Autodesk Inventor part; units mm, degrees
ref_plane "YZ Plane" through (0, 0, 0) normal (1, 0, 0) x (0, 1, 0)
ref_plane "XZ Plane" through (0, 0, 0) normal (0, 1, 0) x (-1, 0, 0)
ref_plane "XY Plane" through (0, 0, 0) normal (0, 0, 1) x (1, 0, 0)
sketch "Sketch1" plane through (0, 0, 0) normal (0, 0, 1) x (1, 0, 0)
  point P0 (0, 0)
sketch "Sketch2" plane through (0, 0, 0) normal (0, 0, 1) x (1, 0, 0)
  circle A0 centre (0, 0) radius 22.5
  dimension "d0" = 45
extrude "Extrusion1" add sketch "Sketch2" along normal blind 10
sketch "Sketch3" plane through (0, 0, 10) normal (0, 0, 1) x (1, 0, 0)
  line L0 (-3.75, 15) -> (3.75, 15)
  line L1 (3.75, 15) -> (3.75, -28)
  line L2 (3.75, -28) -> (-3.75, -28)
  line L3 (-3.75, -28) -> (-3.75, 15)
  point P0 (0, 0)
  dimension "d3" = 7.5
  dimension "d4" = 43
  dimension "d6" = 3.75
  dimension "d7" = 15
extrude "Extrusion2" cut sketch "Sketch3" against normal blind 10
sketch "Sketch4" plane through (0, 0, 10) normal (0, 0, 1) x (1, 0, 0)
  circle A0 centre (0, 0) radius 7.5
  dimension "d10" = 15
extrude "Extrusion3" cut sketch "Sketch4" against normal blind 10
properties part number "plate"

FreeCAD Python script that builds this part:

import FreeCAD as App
import Part
import Sketcher

V = App.Vector


def add_polygon(sketch, points):
    """Adds a closed chain of lines whose ends are joined by coincident constraints."""
    first, n = sketch.GeometryCount, len(points)
    for a, b in zip(points, points[1:] + points[:1]):
        sketch.addGeometry(Part.LineSegment(App.Vector(*a, 0), App.Vector(*b, 0)), False)
    for i in range(n):
        sketch.addConstraint(Sketcher.Constraint("Coincident", first + i, 2, first + (i + 1) % n, 1))

doc = App.newDocument("Part")
params = doc.addObject("Spreadsheet::Sheet", "Params")
for row, (alias, value) in enumerate([
    ("sketch1_diameter", "45 mm"),
    ("pad1_length", "10 mm"),
    ("sketch2_height", "43 mm"),
    ("sketch2_width", "7.5 mm"),
    ("pocket1_length", "10 mm"),
    ("sketch3_diameter", "15 mm"),
    ("pocket2_length", "10 mm"),
], start=1):
    params.set(f"A{row}", alias)
    params.set(f"B{row}", "=" + value)
    params.setAlias(f"B{row}", alias)

body = doc.addObject("PartDesign::Body", "Body")

# Sketch on XY plane
sketch1 = doc.addObject("Sketcher::SketchObject", "Sketch")
body.addObject(sketch1)
sketch1.AttachmentSupport = (doc.XY_Plane, [""])
sketch1.MapMode = "FlatFace"
sketch1.addGeometry(Part.Circle(V(0, 0, 0), V(0, 0, 1), 22), False)
sketch1.addConstraint(Sketcher.Constraint("Coincident", 0, 3, -1, 1))
sketch1.addConstraint(Sketcher.Constraint("Diameter", 0, 45.0))
sketch1.setExpression("Constraints[1]", "Params.sketch1_diameter")
pad1 = doc.addObject("PartDesign::Pad", "Pad")
body.addObject(pad1)
pad1.Profile = sketch1
pad1.setExpression("Length", "Params.pad1_length")

# Sketch on XY plane
sketch2 = doc.addObject("Sketcher::SketchObject", "Sketch001")
body.addObject(sketch2)
sketch2.AttachmentSupport = (doc.XY_Plane, [""])
sketch2.MapMode = "FlatFace"
sketch2.AttachmentOffset = App.Placement(V(0, 0, 10), App.Rotation())
add_polygon(sketch2, [(4, 15), (-4, 15), (-4, -28), (4, -28)])  # lines 0-3
sketch2.addConstraint(Sketcher.Constraint("Horizontal", 0))
sketch2.addConstraint(Sketcher.Constraint("Vertical", 1))
sketch2.addConstraint(Sketcher.Constraint("Horizontal", 2))
sketch2.addConstraint(Sketcher.Constraint("Vertical", 3))
sketch2.addConstraint(Sketcher.Constraint("DistanceY", 1, 2, 1, 1, 43.0))
sketch2.addConstraint(Sketcher.Constraint("DistanceX", 0, 2, 0, 1, 7.5))
sketch2.addConstraint(Sketcher.Constraint("DistanceY", -1, 1, 0, 2, 15.0))
sketch2.addConstraint(Sketcher.Constraint("DistanceX", 0, 2, -1, 1, 3.75))
sketch2.setExpression("Constraints[8]", "Params.sketch2_height")
sketch2.setExpression("Constraints[9]", "Params.sketch2_width")
pocket1 = doc.addObject("PartDesign::Pocket", "Pocket")
body.addObject(pocket1)
pocket1.Profile = sketch2
pocket1.setExpression("Length", "Params.pocket1_length")

# Sketch on XY plane
sketch3 = doc.addObject("Sketcher::SketchObject", "Sketch002")
body.addObject(sketch3)
sketch3.AttachmentSupport = (doc.XY_Plane, [""])
sketch3.MapMode = "FlatFace"
sketch3.AttachmentOffset = App.Placement(V(0, 0, 10), App.Rotation())
sketch3.addGeometry(Part.Circle(V(0, 0, 0), V(0, 0, 1), 8), False)
sketch3.addConstraint(Sketcher.Constraint("Coincident", 0, 3, -1, 1))
sketch3.addConstraint(Sketcher.Constraint("Diameter", 0, 15.0))
sketch3.setExpression("Constraints[1]", "Params.sketch3_diameter")
pocket2 = doc.addObject("PartDesign::Pocket", "Pocket001")
body.addObject(pocket2)
pocket2.Profile = sketch3
pocket2.setExpression("Length", "Params.pocket2_length")

doc.recompute()
